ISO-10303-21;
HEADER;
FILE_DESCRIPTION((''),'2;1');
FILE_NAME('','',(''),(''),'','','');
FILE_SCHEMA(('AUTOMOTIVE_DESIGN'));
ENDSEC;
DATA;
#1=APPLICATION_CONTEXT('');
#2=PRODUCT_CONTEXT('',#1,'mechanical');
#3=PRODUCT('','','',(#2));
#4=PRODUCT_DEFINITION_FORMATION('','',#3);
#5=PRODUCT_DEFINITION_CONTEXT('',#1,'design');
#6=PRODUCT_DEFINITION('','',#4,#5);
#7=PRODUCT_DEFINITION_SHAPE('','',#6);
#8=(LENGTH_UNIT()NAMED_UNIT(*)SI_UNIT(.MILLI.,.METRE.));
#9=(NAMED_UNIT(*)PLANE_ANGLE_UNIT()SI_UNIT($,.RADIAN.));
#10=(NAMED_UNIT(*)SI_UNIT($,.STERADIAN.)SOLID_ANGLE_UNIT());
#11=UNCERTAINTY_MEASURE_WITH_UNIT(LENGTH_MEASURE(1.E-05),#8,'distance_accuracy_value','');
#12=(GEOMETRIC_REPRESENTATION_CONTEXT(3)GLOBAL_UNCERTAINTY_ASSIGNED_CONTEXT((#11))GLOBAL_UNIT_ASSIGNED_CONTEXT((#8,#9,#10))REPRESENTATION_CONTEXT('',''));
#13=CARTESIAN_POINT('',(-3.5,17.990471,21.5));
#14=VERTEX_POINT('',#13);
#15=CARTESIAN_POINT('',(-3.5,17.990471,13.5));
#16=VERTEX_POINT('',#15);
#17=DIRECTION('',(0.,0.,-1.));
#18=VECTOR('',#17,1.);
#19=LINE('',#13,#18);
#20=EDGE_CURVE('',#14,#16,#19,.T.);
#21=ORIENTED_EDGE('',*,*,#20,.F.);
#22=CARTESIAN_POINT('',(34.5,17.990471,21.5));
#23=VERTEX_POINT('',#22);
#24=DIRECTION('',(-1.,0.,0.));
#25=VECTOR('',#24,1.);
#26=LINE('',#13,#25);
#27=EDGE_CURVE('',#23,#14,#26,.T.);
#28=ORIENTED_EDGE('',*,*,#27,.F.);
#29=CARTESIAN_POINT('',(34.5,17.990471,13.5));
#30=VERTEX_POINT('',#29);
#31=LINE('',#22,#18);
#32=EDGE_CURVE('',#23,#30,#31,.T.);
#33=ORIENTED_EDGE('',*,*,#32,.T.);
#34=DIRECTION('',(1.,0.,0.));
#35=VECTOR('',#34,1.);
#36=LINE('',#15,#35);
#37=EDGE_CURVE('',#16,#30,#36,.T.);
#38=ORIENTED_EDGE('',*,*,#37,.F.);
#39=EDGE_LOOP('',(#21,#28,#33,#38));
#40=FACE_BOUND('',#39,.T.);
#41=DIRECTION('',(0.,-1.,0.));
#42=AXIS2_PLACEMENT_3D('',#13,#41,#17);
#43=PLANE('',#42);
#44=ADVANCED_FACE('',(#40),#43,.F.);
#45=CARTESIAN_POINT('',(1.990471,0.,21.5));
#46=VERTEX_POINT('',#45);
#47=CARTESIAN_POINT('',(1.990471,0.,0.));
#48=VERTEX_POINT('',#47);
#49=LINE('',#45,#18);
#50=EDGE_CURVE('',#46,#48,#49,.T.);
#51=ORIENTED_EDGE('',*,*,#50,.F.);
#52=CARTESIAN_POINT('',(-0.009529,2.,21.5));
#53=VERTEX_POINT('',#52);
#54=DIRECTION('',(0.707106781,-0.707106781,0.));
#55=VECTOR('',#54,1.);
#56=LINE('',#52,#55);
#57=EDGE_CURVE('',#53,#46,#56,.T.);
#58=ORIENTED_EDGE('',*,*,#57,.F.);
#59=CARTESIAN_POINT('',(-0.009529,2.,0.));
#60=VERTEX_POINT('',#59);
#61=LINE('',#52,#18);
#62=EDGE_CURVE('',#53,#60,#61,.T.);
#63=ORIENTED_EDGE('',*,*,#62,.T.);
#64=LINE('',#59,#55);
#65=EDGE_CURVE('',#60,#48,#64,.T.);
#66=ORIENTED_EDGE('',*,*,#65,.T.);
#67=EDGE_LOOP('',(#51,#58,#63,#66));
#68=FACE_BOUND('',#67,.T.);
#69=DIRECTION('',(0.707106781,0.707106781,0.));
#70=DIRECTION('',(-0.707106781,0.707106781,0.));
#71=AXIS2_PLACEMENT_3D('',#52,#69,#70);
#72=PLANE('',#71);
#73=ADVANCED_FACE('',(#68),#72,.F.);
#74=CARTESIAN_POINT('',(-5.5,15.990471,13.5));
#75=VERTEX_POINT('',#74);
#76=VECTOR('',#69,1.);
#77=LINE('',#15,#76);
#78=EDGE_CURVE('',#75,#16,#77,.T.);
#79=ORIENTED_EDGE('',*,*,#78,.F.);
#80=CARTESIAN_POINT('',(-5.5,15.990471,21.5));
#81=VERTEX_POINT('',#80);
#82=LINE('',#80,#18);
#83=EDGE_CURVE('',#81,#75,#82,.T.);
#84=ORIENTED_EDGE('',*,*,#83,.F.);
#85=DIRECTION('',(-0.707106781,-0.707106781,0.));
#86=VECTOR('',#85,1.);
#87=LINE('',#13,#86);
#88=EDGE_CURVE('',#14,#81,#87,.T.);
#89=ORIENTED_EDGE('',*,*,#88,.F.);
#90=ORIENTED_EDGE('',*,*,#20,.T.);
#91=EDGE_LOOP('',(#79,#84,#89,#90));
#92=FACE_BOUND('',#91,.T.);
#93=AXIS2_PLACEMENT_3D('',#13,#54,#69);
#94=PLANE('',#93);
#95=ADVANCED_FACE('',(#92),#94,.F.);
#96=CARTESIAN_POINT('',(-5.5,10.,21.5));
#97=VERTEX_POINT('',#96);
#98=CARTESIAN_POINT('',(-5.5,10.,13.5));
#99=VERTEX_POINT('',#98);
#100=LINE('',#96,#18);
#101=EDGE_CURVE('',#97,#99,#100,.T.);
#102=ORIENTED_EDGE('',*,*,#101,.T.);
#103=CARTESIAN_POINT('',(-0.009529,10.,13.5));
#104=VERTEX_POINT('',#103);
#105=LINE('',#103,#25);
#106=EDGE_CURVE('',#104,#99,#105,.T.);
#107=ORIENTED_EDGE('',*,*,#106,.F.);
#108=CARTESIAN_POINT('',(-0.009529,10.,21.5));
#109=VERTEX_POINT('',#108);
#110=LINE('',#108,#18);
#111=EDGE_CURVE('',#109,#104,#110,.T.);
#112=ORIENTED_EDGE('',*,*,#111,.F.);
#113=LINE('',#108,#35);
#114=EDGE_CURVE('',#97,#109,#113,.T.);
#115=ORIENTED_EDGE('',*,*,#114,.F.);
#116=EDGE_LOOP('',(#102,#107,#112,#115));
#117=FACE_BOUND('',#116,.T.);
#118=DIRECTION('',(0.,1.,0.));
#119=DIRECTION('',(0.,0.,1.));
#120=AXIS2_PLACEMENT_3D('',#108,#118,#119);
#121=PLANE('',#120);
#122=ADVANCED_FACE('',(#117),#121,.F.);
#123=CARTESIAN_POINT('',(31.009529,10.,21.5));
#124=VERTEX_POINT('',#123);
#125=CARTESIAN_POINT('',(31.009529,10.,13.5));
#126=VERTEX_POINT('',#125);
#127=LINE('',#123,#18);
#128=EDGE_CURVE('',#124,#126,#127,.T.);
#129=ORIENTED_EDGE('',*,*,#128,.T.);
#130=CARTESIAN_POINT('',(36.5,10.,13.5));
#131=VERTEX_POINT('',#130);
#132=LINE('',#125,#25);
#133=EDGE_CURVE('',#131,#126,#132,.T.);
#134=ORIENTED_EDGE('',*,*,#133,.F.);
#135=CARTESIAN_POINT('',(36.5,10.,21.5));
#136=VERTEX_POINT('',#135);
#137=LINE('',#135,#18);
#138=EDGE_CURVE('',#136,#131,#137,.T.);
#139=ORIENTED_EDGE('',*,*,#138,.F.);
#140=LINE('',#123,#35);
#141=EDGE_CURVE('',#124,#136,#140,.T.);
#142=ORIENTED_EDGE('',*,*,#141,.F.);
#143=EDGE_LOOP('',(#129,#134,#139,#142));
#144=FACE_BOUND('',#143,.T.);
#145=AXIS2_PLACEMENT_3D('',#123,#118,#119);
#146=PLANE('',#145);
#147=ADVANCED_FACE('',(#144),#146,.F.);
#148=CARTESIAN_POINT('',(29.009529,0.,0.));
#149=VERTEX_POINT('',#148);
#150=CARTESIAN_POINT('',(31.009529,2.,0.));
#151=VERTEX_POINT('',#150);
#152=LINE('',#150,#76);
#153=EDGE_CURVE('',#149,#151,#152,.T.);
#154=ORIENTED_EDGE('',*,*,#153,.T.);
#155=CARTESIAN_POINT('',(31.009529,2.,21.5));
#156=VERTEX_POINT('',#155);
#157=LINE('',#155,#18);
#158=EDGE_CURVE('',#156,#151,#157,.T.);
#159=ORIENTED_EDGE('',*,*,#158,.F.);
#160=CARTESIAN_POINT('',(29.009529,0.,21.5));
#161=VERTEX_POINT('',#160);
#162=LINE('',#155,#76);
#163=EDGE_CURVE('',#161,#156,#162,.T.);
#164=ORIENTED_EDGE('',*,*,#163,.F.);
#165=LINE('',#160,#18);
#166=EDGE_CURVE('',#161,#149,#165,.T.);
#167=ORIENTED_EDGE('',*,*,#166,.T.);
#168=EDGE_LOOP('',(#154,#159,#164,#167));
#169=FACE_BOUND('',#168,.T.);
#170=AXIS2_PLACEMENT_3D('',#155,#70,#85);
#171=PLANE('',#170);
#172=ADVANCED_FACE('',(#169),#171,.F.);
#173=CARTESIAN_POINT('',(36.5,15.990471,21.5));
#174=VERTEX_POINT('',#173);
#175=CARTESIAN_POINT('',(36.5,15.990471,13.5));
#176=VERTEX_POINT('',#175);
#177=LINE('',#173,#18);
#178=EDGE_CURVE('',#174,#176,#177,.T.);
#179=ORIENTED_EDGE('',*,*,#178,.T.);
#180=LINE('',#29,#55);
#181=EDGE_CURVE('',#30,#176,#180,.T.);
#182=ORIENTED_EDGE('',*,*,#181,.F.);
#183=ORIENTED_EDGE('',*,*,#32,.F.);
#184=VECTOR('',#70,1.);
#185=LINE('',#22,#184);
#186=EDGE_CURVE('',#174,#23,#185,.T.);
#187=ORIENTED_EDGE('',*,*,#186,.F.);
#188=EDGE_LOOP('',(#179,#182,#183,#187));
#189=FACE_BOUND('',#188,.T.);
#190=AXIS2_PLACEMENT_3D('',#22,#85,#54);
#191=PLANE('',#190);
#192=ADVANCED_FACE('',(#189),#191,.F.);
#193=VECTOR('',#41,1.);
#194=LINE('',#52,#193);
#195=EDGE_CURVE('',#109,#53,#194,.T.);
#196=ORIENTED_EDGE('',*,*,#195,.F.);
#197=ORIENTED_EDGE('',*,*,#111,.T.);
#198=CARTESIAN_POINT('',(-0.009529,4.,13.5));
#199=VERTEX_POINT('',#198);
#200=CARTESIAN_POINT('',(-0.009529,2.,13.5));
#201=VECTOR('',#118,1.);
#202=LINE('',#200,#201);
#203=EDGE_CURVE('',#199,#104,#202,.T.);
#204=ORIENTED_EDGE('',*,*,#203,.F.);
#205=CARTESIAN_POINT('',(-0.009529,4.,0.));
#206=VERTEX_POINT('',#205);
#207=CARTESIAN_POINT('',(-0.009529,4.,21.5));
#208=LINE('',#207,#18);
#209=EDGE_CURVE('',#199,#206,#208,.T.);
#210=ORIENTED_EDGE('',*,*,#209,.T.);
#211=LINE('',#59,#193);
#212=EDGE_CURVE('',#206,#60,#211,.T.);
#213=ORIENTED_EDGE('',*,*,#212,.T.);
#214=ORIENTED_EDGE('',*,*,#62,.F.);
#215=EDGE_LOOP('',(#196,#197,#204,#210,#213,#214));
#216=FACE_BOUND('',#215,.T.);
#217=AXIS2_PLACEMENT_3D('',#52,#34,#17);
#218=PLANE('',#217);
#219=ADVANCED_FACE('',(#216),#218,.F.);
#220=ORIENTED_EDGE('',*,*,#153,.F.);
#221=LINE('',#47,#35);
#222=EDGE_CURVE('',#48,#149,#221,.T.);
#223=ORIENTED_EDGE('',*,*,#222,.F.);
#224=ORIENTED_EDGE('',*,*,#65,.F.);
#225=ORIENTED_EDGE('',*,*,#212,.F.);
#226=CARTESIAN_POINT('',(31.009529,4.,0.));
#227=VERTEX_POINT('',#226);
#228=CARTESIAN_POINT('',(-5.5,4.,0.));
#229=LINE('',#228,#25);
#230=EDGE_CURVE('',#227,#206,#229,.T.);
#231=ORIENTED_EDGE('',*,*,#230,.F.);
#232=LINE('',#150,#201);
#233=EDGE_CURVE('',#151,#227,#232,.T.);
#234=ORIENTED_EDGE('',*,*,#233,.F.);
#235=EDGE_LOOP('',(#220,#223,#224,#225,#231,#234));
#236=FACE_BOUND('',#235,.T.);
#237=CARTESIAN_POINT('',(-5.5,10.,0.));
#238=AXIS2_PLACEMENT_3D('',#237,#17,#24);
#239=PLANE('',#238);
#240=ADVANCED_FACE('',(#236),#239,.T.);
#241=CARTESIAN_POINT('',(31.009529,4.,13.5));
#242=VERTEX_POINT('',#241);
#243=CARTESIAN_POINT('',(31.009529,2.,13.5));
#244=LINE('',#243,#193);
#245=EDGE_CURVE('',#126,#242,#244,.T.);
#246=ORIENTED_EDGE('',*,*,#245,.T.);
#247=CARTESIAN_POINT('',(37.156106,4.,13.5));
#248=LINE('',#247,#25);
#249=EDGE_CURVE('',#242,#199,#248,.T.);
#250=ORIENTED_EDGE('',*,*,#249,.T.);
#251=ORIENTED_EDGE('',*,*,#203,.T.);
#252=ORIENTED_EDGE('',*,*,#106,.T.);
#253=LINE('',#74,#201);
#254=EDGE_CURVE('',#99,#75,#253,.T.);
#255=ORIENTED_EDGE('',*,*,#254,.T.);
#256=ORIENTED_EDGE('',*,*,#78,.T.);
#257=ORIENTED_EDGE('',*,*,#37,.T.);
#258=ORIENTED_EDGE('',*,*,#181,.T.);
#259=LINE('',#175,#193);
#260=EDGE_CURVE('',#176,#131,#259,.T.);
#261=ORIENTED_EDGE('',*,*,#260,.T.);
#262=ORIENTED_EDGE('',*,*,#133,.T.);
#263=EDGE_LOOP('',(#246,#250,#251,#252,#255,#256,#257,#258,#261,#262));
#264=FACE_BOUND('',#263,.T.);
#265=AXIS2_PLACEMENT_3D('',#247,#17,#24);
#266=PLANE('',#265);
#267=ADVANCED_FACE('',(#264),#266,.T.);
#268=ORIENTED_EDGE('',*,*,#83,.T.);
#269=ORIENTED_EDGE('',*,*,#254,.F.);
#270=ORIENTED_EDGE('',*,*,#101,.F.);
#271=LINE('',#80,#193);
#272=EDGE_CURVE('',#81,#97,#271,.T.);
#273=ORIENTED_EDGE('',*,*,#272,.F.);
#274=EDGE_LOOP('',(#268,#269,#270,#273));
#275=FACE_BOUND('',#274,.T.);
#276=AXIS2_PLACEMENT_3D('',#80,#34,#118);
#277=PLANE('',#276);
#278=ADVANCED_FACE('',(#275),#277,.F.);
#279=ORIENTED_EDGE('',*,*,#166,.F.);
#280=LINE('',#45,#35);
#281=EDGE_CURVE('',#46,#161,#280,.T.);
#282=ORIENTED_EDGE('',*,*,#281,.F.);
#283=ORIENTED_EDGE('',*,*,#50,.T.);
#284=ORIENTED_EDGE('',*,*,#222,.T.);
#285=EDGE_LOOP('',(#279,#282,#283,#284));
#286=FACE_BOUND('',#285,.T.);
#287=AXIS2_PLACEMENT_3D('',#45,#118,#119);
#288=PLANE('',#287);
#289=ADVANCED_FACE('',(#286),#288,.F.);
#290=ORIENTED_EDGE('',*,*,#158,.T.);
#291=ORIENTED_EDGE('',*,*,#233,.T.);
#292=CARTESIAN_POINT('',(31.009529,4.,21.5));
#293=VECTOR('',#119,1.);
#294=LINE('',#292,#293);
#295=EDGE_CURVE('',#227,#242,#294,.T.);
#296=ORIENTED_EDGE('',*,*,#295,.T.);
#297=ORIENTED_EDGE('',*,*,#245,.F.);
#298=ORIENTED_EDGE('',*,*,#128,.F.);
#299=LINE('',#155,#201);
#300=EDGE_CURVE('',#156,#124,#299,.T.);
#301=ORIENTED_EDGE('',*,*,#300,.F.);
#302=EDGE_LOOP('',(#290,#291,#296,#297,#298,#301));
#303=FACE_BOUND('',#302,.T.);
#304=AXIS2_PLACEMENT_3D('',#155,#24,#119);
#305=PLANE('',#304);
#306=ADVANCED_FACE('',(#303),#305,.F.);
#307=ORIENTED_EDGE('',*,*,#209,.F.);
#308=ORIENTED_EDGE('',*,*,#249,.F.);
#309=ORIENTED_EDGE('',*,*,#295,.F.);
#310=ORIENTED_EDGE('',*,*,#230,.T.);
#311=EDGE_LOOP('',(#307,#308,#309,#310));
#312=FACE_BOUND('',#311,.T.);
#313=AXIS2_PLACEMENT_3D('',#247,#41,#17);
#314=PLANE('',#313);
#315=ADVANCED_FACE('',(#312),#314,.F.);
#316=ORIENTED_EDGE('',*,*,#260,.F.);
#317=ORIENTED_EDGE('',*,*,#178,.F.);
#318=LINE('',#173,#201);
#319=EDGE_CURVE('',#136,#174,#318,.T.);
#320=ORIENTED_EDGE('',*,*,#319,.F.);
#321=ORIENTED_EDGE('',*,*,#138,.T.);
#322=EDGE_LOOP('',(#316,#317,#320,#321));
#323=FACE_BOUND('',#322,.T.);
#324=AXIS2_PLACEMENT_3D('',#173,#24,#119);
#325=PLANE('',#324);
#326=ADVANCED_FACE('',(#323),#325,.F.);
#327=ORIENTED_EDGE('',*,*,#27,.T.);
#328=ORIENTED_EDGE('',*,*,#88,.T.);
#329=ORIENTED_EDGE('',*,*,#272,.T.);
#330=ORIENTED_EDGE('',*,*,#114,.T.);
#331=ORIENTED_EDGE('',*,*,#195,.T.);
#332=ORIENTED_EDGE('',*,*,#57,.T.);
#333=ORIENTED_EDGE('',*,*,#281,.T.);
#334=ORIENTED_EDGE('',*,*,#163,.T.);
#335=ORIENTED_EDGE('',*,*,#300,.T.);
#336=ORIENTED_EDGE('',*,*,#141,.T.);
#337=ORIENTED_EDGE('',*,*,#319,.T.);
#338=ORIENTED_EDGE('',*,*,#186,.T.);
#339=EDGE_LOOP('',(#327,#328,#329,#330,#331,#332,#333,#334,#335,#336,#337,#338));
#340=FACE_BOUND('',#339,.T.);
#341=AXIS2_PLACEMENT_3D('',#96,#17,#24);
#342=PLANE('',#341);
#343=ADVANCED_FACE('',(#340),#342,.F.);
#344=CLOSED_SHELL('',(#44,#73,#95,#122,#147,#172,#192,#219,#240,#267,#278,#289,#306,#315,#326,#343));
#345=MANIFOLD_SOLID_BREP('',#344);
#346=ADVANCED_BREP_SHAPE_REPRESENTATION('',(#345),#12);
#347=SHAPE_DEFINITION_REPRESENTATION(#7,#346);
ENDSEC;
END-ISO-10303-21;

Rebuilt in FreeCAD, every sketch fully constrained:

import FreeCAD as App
import Part
import Sketcher

V = App.Vector
Q = App.Units.Quantity

doc = App.newDocument("Part")
body = doc.addObject("PartDesign::Body", "Body")

# Sketch on XY plane
sketch1 = doc.addObject("Sketcher::SketchObject", "Sketch")
body.addObject(sketch1)
sketch1.AttachmentSupport = (doc.XY_Plane, [""])
sketch1.MapMode = "FlatFace"
sketch1.addGeometry([
    Part.LineSegment(V(0, 2, 0), V(2, 0, 0)),  # 0
    Part.LineSegment(V(2, 0, 0), V(29, 0, 0)),  # 1
    Part.LineSegment(V(29, 0, 0), V(31, 2, 0)),  # 2
    Part.LineSegment(V(31, 2, 0), V(31, 10, 0)),  # 3
    Part.LineSegment(V(31, 10, 0), V(36.5, 10, 0)),  # 4
    Part.LineSegment(V(36.5, 10, 0), V(36.5, 16, 0)),  # 5
    Part.LineSegment(V(36.5, 16, 0), V(34.5, 18, 0)),  # 6
    Part.LineSegment(V(34.5, 18, 0), V(-3.5, 18, 0)),  # 7
    Part.LineSegment(V(-3.5, 18, 0), V(-5.5, 16, 0)),  # 8
    Part.LineSegment(V(-5.5, 16, 0), V(-5.5, 10, 0)),  # 9
    Part.LineSegment(V(-5.5, 10, 0), V(0, 10, 0)),  # 10
    Part.LineSegment(V(0, 10, 0), V(0, 2, 0)),  # 11
], False)
sketch1.addConstraint([
    Sketcher.Constraint("Coincident", 0, 2, 1, 1),
    Sketcher.Constraint("Coincident", 1, 2, 2, 1),
    Sketcher.Constraint("Coincident", 2, 2, 3, 1),
    Sketcher.Constraint("Coincident", 3, 2, 4, 1),
    Sketcher.Constraint("Coincident", 4, 2, 5, 1),
    Sketcher.Constraint("Coincident", 5, 2, 6, 1),
    Sketcher.Constraint("Coincident", 6, 2, 7, 1),
    Sketcher.Constraint("Coincident", 7, 2, 8, 1),
    Sketcher.Constraint("Coincident", 8, 2, 9, 1),
    Sketcher.Constraint("Coincident", 9, 2, 10, 1),
    Sketcher.Constraint("Coincident", 10, 2, 11, 1),
    Sketcher.Constraint("Coincident", 11, 2, 0, 1),
    Sketcher.Constraint("Horizontal", 1),
    Sketcher.Constraint("Vertical", 3),
    Sketcher.Constraint("Horizontal", 4),
    Sketcher.Constraint("Vertical", 5),
    Sketcher.Constraint("Horizontal", 7),
    Sketcher.Constraint("Vertical", 9),
    Sketcher.Constraint("Horizontal", 10),
    Sketcher.Constraint("Vertical", 11),
    Sketcher.Constraint("PointOnObject", 0, 2, -1),
    Sketcher.Constraint("Perpendicular", 0, 2),
    Sketcher.Constraint("Perpendicular", 2, 6),
    Sketcher.Constraint("Perpendicular", 6, 8),
    Sketcher.Constraint("Horizontal", 5, 2, 8, 2),
    Sketcher.Constraint("Horizontal", 4, 2, 9, 2),
    Sketcher.Constraint("Horizontal", 2, 2, 11, 2),
    Sketcher.Constraint("Equal", 4, 10),
    Sketcher.Constraint("Equal", 0, 2),
    Sketcher.Constraint("Equal", 2, 6),
    Sketcher.Constraint("DistanceX", 7, 2, 7, 1, Q("38 mm")),
    Sketcher.Constraint("DistanceY", 3, 1, 3, 2, Q("8 mm")),
    Sketcher.Constraint("DistanceY", -1, 1, 2, 2, Q("2 mm")),
    Sketcher.Constraint("DistanceX", -1, 1, 4, 2, Q("36.5 mm")),
    Sketcher.Constraint("DistanceX", 4, 1, 4, 2, Q("5.490471 mm")),
    Sketcher.Constraint("DistanceY", 5, 1, 5, 2, Q("5.990471 mm")),
])
pad1 = doc.addObject("PartDesign::Pad", "Pad")
body.addObject(pad1)
pad1.Profile = sketch1
pad1.Length = 21.5

# Sketch on XY plane
sketch2 = doc.addObject("Sketcher::SketchObject", "Sketch001")
body.addObject(sketch2)
sketch2.AttachmentSupport = (doc.XY_Plane, [""])
sketch2.MapMode = "FlatFace"
sketch2.addGeometry([
    Part.LineSegment(V(37, 21, 0), V(37, 4, 0)),
    Part.LineSegment(V(37, 4, 0), V(-6, 4, 0)),
    Part.LineSegment(V(-6, 4, 0), V(-6, 21, 0)),
    Part.LineSegment(V(-6, 21, 0), V(37, 21, 0)),
], False)
sketch2.addConstraint([
    Sketcher.Constraint("Coincident", 0, 2, 1, 1),
    Sketcher.Constraint("Coincident", 1, 2, 2, 1),
    Sketcher.Constraint("Coincident", 2, 2, 3, 1),
    Sketcher.Constraint("Coincident", 3, 2, 0, 1),
    Sketcher.Constraint("Vertical", 0),
    Sketcher.Constraint("Horizontal", 1),
    Sketcher.Constraint("Vertical", 2),
    Sketcher.Constraint("Horizontal", 3),
    Sketcher.Constraint("DistanceY", -1, 1, 0, 2, Q("4 mm")),
    Sketcher.Constraint("DistanceY", 0, 2, 0, 1, Q("16.611509 mm")),
    Sketcher.Constraint("DistanceX", 1, 2, -1, 1, Q("6.217498 mm")),
    Sketcher.Constraint("DistanceX", 1, 2, 1, 1, Q("43.373605 mm")),
])
pocket1 = doc.addObject("PartDesign::Pocket", "Pocket")
body.addObject(pocket1)
pocket1.Profile = sketch2
pocket1.Length = 13.5
pocket1.Reversed = True

doc.recompute()
